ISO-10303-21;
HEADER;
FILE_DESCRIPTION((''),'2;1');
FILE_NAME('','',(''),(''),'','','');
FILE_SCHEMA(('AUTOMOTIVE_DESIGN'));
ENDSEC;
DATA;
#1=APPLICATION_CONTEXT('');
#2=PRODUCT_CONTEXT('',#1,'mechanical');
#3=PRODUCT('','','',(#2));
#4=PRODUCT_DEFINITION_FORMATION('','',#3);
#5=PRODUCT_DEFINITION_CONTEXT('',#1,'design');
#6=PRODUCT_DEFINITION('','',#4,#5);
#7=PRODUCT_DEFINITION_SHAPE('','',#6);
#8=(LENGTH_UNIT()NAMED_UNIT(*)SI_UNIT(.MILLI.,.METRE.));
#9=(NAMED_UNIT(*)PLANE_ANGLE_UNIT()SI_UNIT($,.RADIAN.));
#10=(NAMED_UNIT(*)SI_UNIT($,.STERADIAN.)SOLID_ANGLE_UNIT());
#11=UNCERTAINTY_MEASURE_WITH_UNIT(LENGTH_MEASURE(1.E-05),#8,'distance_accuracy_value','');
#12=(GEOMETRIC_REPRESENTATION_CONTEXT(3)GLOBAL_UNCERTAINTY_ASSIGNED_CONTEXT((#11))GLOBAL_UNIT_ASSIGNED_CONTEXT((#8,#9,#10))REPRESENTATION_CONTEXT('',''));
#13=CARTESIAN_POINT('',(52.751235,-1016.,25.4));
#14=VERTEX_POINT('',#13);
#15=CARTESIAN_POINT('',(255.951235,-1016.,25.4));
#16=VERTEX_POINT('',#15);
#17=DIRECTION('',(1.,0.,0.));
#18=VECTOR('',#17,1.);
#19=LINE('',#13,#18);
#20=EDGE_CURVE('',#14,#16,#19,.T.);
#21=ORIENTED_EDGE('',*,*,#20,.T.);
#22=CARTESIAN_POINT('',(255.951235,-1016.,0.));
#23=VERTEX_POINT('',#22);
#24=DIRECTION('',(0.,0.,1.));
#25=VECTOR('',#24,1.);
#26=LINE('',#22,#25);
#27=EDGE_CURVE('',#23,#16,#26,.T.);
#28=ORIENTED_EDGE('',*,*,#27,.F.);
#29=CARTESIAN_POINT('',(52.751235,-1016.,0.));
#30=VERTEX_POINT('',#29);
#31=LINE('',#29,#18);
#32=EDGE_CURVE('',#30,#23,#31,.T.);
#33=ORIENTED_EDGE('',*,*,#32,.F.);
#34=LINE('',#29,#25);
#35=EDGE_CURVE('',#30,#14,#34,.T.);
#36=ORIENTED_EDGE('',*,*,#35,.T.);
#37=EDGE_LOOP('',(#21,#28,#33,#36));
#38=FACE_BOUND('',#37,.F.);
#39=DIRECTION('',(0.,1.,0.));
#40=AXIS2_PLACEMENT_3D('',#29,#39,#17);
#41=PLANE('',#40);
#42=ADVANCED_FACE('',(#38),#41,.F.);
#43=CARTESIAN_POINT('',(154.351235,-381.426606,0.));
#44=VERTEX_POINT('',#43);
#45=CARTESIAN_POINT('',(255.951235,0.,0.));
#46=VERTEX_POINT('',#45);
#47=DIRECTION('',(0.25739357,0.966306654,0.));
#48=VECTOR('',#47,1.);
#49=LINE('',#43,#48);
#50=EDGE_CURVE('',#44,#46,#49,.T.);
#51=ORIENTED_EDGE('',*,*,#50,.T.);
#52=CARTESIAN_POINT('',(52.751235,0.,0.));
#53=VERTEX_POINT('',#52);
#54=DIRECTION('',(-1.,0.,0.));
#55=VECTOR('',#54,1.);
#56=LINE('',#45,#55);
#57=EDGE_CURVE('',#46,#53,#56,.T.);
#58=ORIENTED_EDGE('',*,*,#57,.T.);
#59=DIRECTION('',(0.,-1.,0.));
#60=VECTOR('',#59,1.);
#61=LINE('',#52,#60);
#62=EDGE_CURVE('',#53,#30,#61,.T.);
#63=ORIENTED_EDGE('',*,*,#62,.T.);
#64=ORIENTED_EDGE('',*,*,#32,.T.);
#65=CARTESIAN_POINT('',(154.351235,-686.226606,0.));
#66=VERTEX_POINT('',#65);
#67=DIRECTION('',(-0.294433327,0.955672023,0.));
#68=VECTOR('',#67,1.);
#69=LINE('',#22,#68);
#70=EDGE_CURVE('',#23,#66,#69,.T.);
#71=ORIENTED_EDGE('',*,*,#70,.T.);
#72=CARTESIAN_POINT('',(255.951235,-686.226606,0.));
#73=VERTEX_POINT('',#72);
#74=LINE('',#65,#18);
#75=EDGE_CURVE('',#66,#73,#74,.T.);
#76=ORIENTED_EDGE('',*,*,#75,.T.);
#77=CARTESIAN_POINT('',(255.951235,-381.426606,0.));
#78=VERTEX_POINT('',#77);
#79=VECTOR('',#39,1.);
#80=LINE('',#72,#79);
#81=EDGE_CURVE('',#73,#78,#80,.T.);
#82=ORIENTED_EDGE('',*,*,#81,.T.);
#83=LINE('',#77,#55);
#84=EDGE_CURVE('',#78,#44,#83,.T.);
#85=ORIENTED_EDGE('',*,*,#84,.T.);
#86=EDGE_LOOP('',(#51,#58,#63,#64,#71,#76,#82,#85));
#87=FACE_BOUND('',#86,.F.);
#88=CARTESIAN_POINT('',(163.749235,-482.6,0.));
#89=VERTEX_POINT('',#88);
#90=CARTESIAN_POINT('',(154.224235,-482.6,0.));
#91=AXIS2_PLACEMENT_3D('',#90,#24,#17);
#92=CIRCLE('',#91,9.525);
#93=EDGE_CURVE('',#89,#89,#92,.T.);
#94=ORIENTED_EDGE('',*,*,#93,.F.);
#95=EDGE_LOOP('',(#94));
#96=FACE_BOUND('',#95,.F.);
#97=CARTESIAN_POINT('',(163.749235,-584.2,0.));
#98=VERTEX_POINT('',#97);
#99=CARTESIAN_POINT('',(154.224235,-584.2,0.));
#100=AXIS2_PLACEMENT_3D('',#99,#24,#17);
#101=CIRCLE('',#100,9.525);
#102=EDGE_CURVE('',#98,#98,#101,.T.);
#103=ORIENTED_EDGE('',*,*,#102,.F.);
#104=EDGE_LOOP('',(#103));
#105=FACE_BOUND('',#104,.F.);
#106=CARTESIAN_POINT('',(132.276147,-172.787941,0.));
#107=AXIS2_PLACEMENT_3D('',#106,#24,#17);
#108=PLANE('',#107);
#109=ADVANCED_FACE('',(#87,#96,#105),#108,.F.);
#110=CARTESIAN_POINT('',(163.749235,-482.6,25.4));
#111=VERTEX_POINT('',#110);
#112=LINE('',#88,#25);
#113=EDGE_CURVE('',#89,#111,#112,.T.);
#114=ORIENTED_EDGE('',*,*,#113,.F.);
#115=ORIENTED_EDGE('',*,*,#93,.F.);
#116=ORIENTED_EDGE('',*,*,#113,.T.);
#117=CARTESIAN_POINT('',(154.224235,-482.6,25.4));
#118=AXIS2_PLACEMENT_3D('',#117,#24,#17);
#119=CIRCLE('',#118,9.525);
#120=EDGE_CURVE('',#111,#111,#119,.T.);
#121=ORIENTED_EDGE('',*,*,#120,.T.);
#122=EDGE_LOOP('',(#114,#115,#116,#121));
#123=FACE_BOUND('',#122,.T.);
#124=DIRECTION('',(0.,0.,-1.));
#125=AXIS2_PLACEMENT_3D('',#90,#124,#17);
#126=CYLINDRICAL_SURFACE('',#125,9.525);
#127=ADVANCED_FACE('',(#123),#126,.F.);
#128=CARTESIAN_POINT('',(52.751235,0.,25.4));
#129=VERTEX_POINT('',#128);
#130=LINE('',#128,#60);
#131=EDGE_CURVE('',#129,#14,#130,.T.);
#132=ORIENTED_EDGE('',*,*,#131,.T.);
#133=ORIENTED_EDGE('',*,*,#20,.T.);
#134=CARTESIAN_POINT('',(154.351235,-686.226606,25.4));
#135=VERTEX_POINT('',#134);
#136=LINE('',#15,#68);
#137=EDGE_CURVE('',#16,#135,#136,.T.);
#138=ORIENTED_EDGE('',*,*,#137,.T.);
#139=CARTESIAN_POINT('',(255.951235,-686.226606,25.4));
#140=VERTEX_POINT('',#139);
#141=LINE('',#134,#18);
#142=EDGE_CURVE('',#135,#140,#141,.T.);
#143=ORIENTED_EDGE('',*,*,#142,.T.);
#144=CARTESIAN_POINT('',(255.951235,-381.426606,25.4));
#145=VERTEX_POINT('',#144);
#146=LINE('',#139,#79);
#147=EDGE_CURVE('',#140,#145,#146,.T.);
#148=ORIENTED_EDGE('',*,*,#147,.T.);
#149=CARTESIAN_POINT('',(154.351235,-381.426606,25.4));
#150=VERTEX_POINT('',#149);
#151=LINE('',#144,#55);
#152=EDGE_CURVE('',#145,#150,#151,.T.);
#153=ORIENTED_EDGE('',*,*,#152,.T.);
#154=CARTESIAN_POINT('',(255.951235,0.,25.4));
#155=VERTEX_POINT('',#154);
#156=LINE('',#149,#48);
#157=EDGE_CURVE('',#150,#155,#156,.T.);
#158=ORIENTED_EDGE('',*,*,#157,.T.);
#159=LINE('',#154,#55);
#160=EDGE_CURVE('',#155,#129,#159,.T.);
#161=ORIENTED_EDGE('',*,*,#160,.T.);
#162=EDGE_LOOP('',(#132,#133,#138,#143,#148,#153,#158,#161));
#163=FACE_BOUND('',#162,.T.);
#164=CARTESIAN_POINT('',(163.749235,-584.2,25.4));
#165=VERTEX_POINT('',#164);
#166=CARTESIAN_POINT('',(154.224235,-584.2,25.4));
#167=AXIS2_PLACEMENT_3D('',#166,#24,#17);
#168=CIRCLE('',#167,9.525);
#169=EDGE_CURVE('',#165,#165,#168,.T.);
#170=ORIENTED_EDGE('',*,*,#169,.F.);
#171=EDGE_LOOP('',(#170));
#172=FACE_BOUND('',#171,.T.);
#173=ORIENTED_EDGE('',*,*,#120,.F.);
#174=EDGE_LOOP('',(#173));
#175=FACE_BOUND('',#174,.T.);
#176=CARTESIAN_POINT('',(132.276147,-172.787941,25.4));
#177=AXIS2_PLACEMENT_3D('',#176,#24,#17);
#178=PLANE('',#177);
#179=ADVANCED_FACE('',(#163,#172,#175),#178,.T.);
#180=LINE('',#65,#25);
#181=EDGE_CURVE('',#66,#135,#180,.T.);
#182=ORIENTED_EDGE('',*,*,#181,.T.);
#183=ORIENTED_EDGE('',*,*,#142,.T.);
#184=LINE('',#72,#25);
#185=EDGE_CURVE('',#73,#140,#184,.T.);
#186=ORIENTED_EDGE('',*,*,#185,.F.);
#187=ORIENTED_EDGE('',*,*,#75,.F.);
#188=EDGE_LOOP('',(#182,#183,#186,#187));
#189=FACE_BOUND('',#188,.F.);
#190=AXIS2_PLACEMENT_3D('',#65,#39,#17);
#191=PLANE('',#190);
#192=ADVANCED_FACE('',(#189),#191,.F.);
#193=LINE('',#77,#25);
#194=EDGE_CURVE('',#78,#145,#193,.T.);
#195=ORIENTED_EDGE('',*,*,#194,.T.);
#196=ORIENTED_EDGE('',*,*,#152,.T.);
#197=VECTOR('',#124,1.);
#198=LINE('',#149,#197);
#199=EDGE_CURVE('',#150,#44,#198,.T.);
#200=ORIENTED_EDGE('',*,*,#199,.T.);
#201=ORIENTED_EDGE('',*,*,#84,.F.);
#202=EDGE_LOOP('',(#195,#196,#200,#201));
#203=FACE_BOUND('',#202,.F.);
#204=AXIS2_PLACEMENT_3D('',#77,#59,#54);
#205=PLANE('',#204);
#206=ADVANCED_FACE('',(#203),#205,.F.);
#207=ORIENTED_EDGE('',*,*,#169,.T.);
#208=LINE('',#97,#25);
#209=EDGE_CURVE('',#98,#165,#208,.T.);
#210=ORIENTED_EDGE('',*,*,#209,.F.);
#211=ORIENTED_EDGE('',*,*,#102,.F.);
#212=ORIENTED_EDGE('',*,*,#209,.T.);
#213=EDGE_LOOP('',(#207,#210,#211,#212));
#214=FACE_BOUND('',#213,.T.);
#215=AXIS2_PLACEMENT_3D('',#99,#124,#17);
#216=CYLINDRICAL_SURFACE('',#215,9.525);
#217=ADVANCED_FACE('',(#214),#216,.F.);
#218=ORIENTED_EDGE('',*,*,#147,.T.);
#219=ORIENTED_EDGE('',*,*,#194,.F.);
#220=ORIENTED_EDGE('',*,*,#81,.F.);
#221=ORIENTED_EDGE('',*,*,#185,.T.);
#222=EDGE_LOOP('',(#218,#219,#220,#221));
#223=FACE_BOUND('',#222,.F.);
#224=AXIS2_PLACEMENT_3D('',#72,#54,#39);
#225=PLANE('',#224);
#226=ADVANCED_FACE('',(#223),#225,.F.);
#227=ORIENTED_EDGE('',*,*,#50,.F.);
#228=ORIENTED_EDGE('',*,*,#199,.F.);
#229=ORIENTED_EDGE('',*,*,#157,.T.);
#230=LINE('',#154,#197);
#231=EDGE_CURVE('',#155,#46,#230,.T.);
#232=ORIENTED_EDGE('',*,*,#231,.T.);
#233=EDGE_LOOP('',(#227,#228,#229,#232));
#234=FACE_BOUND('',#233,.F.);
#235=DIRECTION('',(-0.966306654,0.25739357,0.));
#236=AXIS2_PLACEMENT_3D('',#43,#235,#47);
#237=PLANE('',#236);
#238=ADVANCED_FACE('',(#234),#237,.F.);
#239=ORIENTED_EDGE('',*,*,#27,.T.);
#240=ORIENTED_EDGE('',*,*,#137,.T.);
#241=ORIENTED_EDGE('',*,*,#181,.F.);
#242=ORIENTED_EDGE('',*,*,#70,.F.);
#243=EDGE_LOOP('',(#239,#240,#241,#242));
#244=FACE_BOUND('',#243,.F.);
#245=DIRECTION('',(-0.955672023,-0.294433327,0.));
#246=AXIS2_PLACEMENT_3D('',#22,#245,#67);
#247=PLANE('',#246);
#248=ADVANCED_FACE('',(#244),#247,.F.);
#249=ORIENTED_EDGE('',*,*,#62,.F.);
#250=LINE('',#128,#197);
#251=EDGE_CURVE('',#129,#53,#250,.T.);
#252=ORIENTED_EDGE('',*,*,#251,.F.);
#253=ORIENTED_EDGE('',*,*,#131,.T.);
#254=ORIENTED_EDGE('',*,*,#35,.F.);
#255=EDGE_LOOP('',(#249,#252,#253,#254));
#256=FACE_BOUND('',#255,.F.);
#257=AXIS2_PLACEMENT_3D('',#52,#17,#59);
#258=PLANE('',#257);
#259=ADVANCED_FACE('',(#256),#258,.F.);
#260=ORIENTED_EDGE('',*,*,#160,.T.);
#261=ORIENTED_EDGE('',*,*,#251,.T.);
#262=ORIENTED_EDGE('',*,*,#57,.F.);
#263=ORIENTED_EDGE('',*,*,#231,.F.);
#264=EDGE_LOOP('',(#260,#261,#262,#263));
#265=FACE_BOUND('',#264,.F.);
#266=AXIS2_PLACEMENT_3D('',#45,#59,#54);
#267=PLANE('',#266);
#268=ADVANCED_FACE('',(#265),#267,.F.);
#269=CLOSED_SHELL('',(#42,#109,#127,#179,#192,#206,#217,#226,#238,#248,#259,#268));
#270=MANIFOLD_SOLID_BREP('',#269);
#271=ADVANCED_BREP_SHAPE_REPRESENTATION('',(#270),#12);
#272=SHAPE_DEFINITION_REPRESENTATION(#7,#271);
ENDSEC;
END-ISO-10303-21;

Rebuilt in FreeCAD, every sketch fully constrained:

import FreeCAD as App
import Part
import Sketcher

V = App.Vector
Q = App.Units.Quantity


def add_polygon(sketch, points):
    """Adds a closed chain of lines whose ends are joined by coincident constraints."""
    first, n = sketch.GeometryCount, len(points)
    for a, b in zip(points, points[1:] + points[:1]):
        sketch.addGeometry(Part.LineSegment(App.Vector(*a, 0), App.Vector(*b, 0)), False)
    for i in range(n):
        sketch.addConstraint(Sketcher.Constraint("Coincident", first + i, 2, first + (i + 1) % n, 1))

doc = App.newDocument("Part")
params = doc.addObject("Spreadsheet::Sheet", "Params")
for row, (alias, value) in enumerate([
    ("sketch1_width", "4 in"),
    ("sketch1_width2", "8 in"),
    ("pad1_length", "0.75 in"),
    ("sketch2_diameter", "0.75 in"),
    ("sketch2_width", "8 in"),
    ("sketch2_width2", "4 in"),
    ("sketch2_height", "40 in"),
    ("sketch2_height2", "12 in"),
    ("pad2_length", "1 in"),
], start=1):
    params.set(f"A{row}", alias)
    params.set(f"B{row}", "=" + value)
    params.setAlias(f"B{row}", alias)

body = doc.addObject("PartDesign::Body", "Body")

sketch1 = body.newObject("Sketcher::SketchObject", "Sketch")
sketch1.AttachmentSupport = (doc.getObject("XY_Plane"), [""])
sketch1.MapMode = "FlatFace"
add_polygon(sketch1, [(53, 0), (53, -381), (154, -381), (256, 0)])
sketch1.addConstraint(Sketcher.Constraint("Vertical", 0))
sketch1.addConstraint(Sketcher.Constraint("Horizontal", 1))
sketch1.addConstraint(Sketcher.Constraint("Horizontal", 3))
sketch1.addConstraint(Sketcher.Constraint("PointOnObject", 2, 2, -1))
sketch1.addConstraint(Sketcher.Constraint("DistanceX", 1, 1, 1, 2, Q("4 in")))
sketch1.addConstraint(Sketcher.Constraint("DistanceX", 3, 2, 3, 1, Q("8 in")))
sketch1.addConstraint(Sketcher.Constraint("DistanceY", 0, 2, 0, 1, 381.426606))
sketch1.addConstraint(Sketcher.Constraint("DistanceX", -1, 1, 0, 2, 52.751235))
sketch1.setExpression("Constraints[8]", "Params.sketch1_width")
sketch1.setExpression("Constraints[9]", "Params.sketch1_width2")
pad1 = body.newObject("PartDesign::Pad", "Pad")
pad1.Profile = sketch1
pad1.setExpression("Length", "Params.pad1_length")

sketch2 = body.newObject("Sketcher::SketchObject", "Sketch001")
sketch2.AttachmentSupport = (doc.getObject("XY_Plane"), [""])
sketch2.MapMode = "FlatFace"
add_polygon(sketch2, [(53, 0), (53, -1016), (256, -1016), (154, -686), (256, -686), (256, -381), (154, -381), (256, 0)])
sketch2.addGeometry(Part.Circle(V(154, -584, 0), V(0, 0, 1), 10), False)
sketch2.addGeometry(Part.Circle(V(154, -483, 0), V(0, 0, 1), 10), False)
sketch2.addConstraint(Sketcher.Constraint("Vertical", 0))
sketch2.addConstraint(Sketcher.Constraint("Horizontal", 1))
sketch2.addConstraint(Sketcher.Constraint("Horizontal", 3))
sketch2.addConstraint(Sketcher.Constraint("Vertical", 4))
sketch2.addConstraint(Sketcher.Constraint("Horizontal", 5))
sketch2.addConstraint(Sketcher.Constraint("Horizontal", 7))
sketch2.addConstraint(Sketcher.Constraint("Equal", 8, 9))
sketch2.addConstraint(Sketcher.Constraint("PointOnObject", 6, 2, -1))
sketch2.addConstraint(Sketcher.Constraint("Vertical", 8, 3, 9, 3))
sketch2.addConstraint(Sketcher.Constraint("Vertical", 1, 2, 3, 2))
sketch2.addConstraint(Sketcher.Constraint("Vertical", 2, 2, 5, 2))
sketch2.addConstraint(Sketcher.Constraint("Vertical", 4, 2, 6, 2))
sketch2.addConstraint(Sketcher.Constraint("Diameter", 8, Q("0.75 in")))
sketch2.addConstraint(Sketcher.Constraint("DistanceX", 1, 1, 1, 2, Q("8 in")))
sketch2.addConstraint(Sketcher.Constraint("DistanceX", 3, 1, 3, 2, Q("4 in")))
sketch2.addConstraint(Sketcher.Constraint("DistanceY", 0, 2, 0, 1, Q("40 in")))
sketch2.addConstraint(Sketcher.Constraint("DistanceY", 4, 1, 4, 2, Q("12 in")))
sketch2.addConstraint(Sketcher.Constraint("DistanceY", 8, 3, -1, 1, Q("23 in")))
sketch2.addConstraint(Sketcher.Constraint("DistanceY", 9, 3, -1, 1, Q("19 in")))
sketch2.addConstraint(Sketcher.Constraint("DistanceX", 0, 2, 8, 3, Q("3.995 in")))
sketch2.addConstraint(Sketcher.Constraint("Distance", 2, 345.069632))
sketch2.addConstraint(Sketcher.Constraint("DistanceX", -1, 1, 8, 3, 154.224235))
sketch2.setExpression("Constraints[20]", "Params.sketch2_diameter")
sketch2.setExpression("Constraints[21]", "Params.sketch2_width")
sketch2.setExpression("Constraints[22]", "Params.sketch2_width2")
sketch2.setExpression("Constraints[23]", "Params.sketch2_height")
sketch2.setExpression("Constraints[24]", "Params.sketch2_height2")
pad2 = body.newObject("PartDesign::Pad", "Pad001")
pad2.Profile = sketch2
pad2.setExpression("Length", "Params.pad2_length")

doc.recompute()
